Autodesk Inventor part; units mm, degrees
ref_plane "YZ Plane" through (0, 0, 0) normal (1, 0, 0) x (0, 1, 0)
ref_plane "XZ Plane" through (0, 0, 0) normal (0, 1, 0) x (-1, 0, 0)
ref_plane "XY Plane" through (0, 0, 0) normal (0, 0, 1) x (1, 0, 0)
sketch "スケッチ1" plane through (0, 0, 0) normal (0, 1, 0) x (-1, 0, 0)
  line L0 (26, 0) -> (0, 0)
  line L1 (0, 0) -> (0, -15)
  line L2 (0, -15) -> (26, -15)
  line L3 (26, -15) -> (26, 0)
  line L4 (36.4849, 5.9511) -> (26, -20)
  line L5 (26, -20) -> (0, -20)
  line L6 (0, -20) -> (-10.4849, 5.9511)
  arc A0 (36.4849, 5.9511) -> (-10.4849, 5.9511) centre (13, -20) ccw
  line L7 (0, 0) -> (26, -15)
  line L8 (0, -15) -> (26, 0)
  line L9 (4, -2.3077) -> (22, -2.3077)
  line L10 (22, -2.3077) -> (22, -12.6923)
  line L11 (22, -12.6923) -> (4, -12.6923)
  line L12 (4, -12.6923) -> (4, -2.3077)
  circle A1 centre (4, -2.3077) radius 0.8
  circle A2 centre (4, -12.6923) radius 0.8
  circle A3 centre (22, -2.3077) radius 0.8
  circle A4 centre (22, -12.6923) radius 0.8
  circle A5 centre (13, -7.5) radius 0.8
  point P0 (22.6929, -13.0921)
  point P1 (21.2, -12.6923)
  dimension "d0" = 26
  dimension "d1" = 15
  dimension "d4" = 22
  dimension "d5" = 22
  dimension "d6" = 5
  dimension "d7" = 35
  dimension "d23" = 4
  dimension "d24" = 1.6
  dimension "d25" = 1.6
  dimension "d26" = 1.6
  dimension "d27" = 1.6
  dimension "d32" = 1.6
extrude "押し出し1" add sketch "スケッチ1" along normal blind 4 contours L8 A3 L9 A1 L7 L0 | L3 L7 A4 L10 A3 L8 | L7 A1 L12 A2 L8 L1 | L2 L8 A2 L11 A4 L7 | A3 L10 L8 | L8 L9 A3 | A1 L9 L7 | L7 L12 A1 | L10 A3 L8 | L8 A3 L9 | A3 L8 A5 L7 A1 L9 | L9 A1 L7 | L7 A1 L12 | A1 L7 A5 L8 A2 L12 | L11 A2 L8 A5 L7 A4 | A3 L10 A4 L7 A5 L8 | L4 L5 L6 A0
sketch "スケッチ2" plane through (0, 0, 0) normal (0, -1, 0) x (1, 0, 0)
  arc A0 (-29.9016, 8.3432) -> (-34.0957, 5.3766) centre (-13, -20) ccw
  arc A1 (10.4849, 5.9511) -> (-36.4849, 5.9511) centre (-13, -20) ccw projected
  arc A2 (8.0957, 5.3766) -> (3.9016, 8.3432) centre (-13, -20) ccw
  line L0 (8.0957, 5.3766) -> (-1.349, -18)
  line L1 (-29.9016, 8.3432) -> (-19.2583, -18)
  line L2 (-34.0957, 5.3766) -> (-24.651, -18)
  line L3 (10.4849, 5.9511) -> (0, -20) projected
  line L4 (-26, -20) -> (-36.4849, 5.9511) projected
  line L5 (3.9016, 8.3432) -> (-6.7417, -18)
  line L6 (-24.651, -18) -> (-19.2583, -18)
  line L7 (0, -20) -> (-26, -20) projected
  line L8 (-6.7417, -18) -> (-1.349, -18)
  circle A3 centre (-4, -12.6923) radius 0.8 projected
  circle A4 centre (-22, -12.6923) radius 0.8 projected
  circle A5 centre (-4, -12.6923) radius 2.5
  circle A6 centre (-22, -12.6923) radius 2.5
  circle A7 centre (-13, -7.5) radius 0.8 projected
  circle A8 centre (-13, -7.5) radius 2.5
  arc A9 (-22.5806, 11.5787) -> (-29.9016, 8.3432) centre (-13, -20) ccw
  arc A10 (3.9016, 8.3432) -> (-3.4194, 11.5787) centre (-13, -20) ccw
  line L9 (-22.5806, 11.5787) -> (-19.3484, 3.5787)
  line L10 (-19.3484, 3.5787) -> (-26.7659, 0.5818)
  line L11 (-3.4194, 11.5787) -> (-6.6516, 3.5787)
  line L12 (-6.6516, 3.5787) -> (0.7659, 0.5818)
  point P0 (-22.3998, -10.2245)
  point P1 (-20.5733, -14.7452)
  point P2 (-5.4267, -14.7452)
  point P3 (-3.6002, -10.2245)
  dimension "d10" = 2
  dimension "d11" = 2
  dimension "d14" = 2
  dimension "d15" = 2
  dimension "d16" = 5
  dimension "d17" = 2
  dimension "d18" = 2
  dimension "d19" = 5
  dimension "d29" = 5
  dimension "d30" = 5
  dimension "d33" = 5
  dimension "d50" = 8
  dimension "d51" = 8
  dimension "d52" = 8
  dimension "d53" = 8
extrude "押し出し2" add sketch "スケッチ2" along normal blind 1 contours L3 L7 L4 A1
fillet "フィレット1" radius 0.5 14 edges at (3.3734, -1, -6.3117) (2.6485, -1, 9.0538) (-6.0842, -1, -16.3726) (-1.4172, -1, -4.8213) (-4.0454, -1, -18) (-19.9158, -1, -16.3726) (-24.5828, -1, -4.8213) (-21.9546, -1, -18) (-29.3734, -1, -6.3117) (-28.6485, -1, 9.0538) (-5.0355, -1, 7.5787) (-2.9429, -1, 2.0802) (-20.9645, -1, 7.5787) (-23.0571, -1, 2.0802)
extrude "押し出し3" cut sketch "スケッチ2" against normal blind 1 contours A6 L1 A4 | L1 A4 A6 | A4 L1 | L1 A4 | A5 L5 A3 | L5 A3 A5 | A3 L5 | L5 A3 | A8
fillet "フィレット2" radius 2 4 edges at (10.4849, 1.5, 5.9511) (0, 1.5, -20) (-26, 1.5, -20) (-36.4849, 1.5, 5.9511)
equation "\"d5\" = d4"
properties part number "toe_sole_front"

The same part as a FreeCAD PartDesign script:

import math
import FreeCAD as App
import Part
import Sketcher
Q = App.Units.Quantity


def edges_at(feature, points):
    """Names of the edges that pass closest to the given points."""
    edges = feature.Shape.Edges
    near = lambda p: min(range(len(edges)), key=lambda i: edges[i].distToShape(Part.Vertex(*p))[0])
    return sorted({f"Edge{near(p) + 1}" for p in points})

doc = App.newDocument("Part")
body = doc.addObject("PartDesign::Body", "Body")

# Sketch on XZ plane
sketch1 = body.newObject("Sketcher::SketchObject", "Sketch")
sketch1.AttachmentSupport = (doc.getObject("XZ_Plane"), [""])
sketch1.MapMode = "FlatFace"
sketch1.addGeometry(Part.LineSegment(App.Vector(-26, -20, 0), App.Vector(-36.5, 6, 0)), False)
sketch1.addGeometry(Part.ArcOfCircle(Part.Circle(App.Vector(-13, -20, 0), App.Vector(0, 0, 1), 35), math.radians(48), math.radians(132)), False)
sketch1.addGeometry(Part.LineSegment(App.Vector(10.5, 6, 0), App.Vector(0, -20, 0)), False)
sketch1.addGeometry(Part.LineSegment(App.Vector(0, -20, 0), App.Vector(-26, -20, 0)), False)
sketch1.addGeometry(Part.Circle(App.Vector(-22, -12.7, 0), App.Vector(0, 0, 1), 0.8), False)
sketch1.addGeometry(Part.Circle(App.Vector(-13, -7.5, 0), App.Vector(0, 0, 1), 0.8), False)
sketch1.addGeometry(Part.Circle(App.Vector(-4, -12.7, 0), App.Vector(0, 0, 1), 0.8), False)
sketch1.addConstraint(Sketcher.Constraint("Coincident", 0, 2, 1, 2))
sketch1.addConstraint(Sketcher.Constraint("Coincident", 1, 1, 2, 1))
sketch1.addConstraint(Sketcher.Constraint("Coincident", 2, 2, 3, 1))
sketch1.addConstraint(Sketcher.Constraint("Coincident", 3, 2, 0, 1))
sketch1.addConstraint(Sketcher.Constraint("Horizontal", 3))
sketch1.addConstraint(Sketcher.Constraint("Equal", 4, 5))
sketch1.addConstraint(Sketcher.Constraint("Equal", 5, 6))
sketch1.addConstraint(Sketcher.Constraint("PointOnObject", 2, 2, -2))
sketch1.addConstraint(Sketcher.Constraint("Horizontal", 4, 3, 6, 3))
sketch1.addConstraint(Sketcher.Constraint("Horizontal", 0, 2, 1, 1))
sketch1.addConstraint(Sketcher.Constraint("Horizontal", 1, 3, 2, 2))
sketch1.addConstraint(Sketcher.Constraint("Vertical", 1, 3, 5, 3))
sketch1.addConstraint(Sketcher.Constraint("Equal", 0, 2))
sketch1.addConstraint(Sketcher.Constraint("Radius", 1, Q("35 mm")))
sketch1.addConstraint(Sketcher.Constraint("Diameter", 4, Q("1.6 mm")))
sketch1.addConstraint(Sketcher.Constraint("DistanceX", 3, 2, 3, 1, Q("26 mm")))
sketch1.addConstraint(Sketcher.Constraint("DistanceX", 4, 3, -1, 1, Q("22 mm")))
sketch1.addConstraint(Sketcher.Constraint("DistanceX", 6, 3, -1, 1, Q("4 mm")))
sketch1.addConstraint(Sketcher.Constraint("Angle", 0, Q("112 deg")))
sketch1.addConstraint(Sketcher.Constraint("DistanceY", 1, 3, -1, 1, Q("20 mm")))
sketch1.addConstraint(Sketcher.Constraint("DistanceY", 5, 3, -1, 1, Q("7.5 mm")))
sketch1.addConstraint(Sketcher.Constraint("DistanceY", 4, 3, -1, 1, Q("12.6923 mm")))
pad1 = body.newObject("PartDesign::Pad", "Pad")
pad1.Profile = sketch1
pad1.Length = 4
pad1.Reversed = True

# Sketch on XZ plane
sketch2 = body.newObject("Sketcher::SketchObject", "Sketch001")
sketch2.AttachmentSupport = (doc.getObject("XZ_Plane"), [""])
sketch2.MapMode = "FlatFace"
sketch2.addGeometry(Part.LineSegment(App.Vector(0, -20, 0), App.Vector(10.5, 6, 0)), False)
sketch2.addGeometry(Part.ArcOfCircle(Part.Circle(App.Vector(-13, -20, 0), App.Vector(0, 0, 1), 35), math.radians(48), math.radians(132)), False)
sketch2.addGeometry(Part.LineSegment(App.Vector(-36.5, 6, 0), App.Vector(-26, -20, 0)), False)
sketch2.addGeometry(Part.LineSegment(App.Vector(-26, -20, 0), App.Vector(0, -20, 0)), False)
sketch2.addGeometry(Part.ArcOfCircle(Part.Circle(App.Vector(-13, -20, 0), App.Vector(0, 0, 1), 33), math.radians(120.81), math.radians(129.74)), False)
sketch2.addGeometry(Part.ArcOfCircle(Part.Circle(App.Vector(-13, -20, 0), App.Vector(0, 0, 1), 33), math.radians(106.88), math.radians(120.81)), False)
sketch2.addGeometry(Part.LineSegment(App.Vector(-22.6, 11.6, 0), App.Vector(-19.3, 3.6, 0)), False)
sketch2.addGeometry(Part.LineSegment(App.Vector(-19.3, 3.6, 0), App.Vector(-26.8, 0.6, 0)), False)
sketch2.addGeometry(Part.LineSegment(App.Vector(-26.8, 0.6, 0), App.Vector(-22.4, -10.2, 0)), False)
sketch2.addGeometry(Part.ArcOfCircle(Part.Circle(App.Vector(-22, -12.7, 0), App.Vector(0, 0, 1), 2.5), math.radians(-55), math.radians(99)), False)
sketch2.addGeometry(Part.LineSegment(App.Vector(-20.6, -14.7, 0), App.Vector(-19.3, -18, 0)), False)
sketch2.addGeometry(Part.LineSegment(App.Vector(-19.3, -18, 0), App.Vector(-24.7, -18, 0)), False)
sketch2.addGeometry(Part.LineSegment(App.Vector(-24.7, -18, 0), App.Vector(-34.1, 5.4, 0)), False)
sketch2.addGeometry(Part.Circle(App.Vector(-13, -7.5, 0), App.Vector(0, 0, 1), 2.5), False)
sketch2.addGeometry(Part.ArcOfCircle(Part.Circle(App.Vector(-13, -20, 0), App.Vector(0, 0, 1), 33), math.radians(50.26), math.radians(59.19)), False)
sketch2.addGeometry(Part.LineSegment(App.Vector(8.1, 5.4, 0), App.Vector(-1.3, -18, 0)), False)
sketch2.addGeometry(Part.LineSegment(App.Vector(-1.3, -18, 0), App.Vector(-6.7, -18, 0)), False)
sketch2.addGeometry(Part.LineSegment(App.Vector(-6.7, -18, 0), App.Vector(-5.4, -14.7, 0)), False)
sketch2.addGeometry(Part.ArcOfCircle(Part.Circle(App.Vector(-4, -12.7, 0), App.Vector(0, 0, 1), 2.5), math.radians(81), math.radians(235)), False)
sketch2.addGeometry(Part.LineSegment(App.Vector(-3.6, -10.2, 0), App.Vector(0.8, 0.6, 0)), False)
sketch2.addGeometry(Part.LineSegment(App.Vector(0.8, 0.6, 0), App.Vector(-6.7, 3.6, 0)), False)
sketch2.addGeometry(Part.LineSegment(App.Vector(-6.7, 3.6, 0), App.Vector(-3.4, 11.6, 0)), False)
sketch2.addGeometry(Part.ArcOfCircle(Part.Circle(App.Vector(-13, -20, 0), App.Vector(0, 0, 1), 33), math.radians(59.19), math.radians(73.12)), False)
sketch2.addConstraint(Sketcher.Constraint("Coincident", 0, 2, 1, 1))
sketch2.addConstraint(Sketcher.Constraint("Coincident", 1, 2, 2, 1))
sketch2.addConstraint(Sketcher.Constraint("Coincident", 2, 2, 3, 1))
sketch2.addConstraint(Sketcher.Constraint("Coincident", 3, 2, 0, 1))
sketch2.addConstraint(Sketcher.Constraint("Tangent", 4, 1, 5, 2))
sketch2.addConstraint(Sketcher.Constraint("Coincident", 5, 1, 6, 1))
sketch2.addConstraint(Sketcher.Constraint("Coincident", 6, 2, 7, 1))
sketch2.addConstraint(Sketcher.Constraint("Coincident", 7, 2, 8, 1))
sketch2.addConstraint(Sketcher.Constraint("Coincident", 8, 2, 9, 2))
sketch2.addConstraint(Sketcher.Constraint("Coincident", 9, 1, 10, 1))
sketch2.addConstraint(Sketcher.Constraint("Coincident", 10, 2, 11, 1))
sketch2.addConstraint(Sketcher.Constraint("Coincident", 11, 2, 12, 1))
sketch2.addConstraint(Sketcher.Constraint("Coincident", 12, 2, 4, 2))
sketch2.addConstraint(Sketcher.Constraint("Coincident", 14, 1, 15, 1))
sketch2.addConstraint(Sketcher.Constraint("Coincident", 15, 2, 16, 1))
sketch2.addConstraint(Sketcher.Constraint("Coincident", 16, 2, 17, 1))
sketch2.addConstraint(Sketcher.Constraint("Coincident", 17, 2, 18, 2))
sketch2.addConstraint(Sketcher.Constraint("Coincident", 18, 1, 19, 1))
sketch2.addConstraint(Sketcher.Constraint("Coincident", 19, 2, 20, 1))
sketch2.addConstraint(Sketcher.Constraint("Coincident", 20, 2, 21, 1))
sketch2.addConstraint(Sketcher.Constraint("Coincident", 21, 2, 22, 2))
sketch2.addConstraint(Sketcher.Constraint("Tangent", 22, 1, 14, 2))
sketch2.addConstraint(Sketcher.Constraint("Horizontal", 3))
sketch2.addConstraint(Sketcher.Constraint("Horizontal", 11))
sketch2.addConstraint(Sketcher.Constraint("Horizontal", 16))
sketch2.addConstraint(Sketcher.Constraint("Equal", 9, 13))
sketch2.addConstraint(Sketcher.Constraint("Equal", 13, 18))
sketch2.addConstraint(Sketcher.Constraint("PointOnObject", 3, 2, -2))
sketch2.addConstraint(Sketcher.Constraint("Parallel", 2, 6))
sketch2.addConstraint(Sketcher.Constraint("Perpendicular", 6, 7))
sketch2.addConstraint(Sketcher.Constraint("Perpendicular", 7, 8))
sketch2.addConstraint(Sketcher.Constraint("Parallel", 8, 10))
sketch2.addConstraint(Sketcher.Constraint("Parallel", 10, 12))
sketch2.addConstraint(Sketcher.Constraint("Parallel", 0, 15))
sketch2.addConstraint(Sketcher.Constraint("Parallel", 15, 17))
sketch2.addConstraint(Sketcher.Constraint("Parallel", 17, 19))
sketch2.addConstraint(Sketcher.Constraint("Perpendicular", 19, 20))
sketch2.addConstraint(Sketcher.Constraint("Perpendicular", 20, 21))
sketch2.addConstraint(Sketcher.Constraint("Horizontal", 9, 3, 18, 3))
sketch2.addConstraint(Sketcher.Constraint("Horizontal", 0, 2, 1, 2))
sketch2.addConstraint(Sketcher.Constraint("Horizontal", 1, 3, 2, 2))
sketch2.addConstraint(Sketcher.Constraint("Horizontal", 12, 2, 14, 1))
sketch2.addConstraint(Sketcher.Constraint("Horizontal", 11, 2, 15, 2))
sketch2.addConstraint(Sketcher.Constraint("Horizontal", 9, 1, 17, 2))
sketch2.addConstraint(Sketcher.Constraint("Horizontal", 8, 2, 18, 1))
sketch2.addConstraint(Sketcher.Constraint("Horizontal", 7, 2, 19, 2))
sketch2.addConstraint(Sketcher.Constraint("Horizontal", 6, 2, 20, 2))
sketch2.addConstraint(Sketcher.Constraint("Horizontal", 5, 1, 21, 2))
sketch2.addConstraint(Sketcher.Constraint("Horizontal", 4, 1, 22, 1))
sketch2.addConstraint(Sketcher.Constraint("Vertical", 1, 3, 13, 3))
sketch2.addConstraint(Sketcher.Constraint("Vertical", 4, 3, 14, 3))
sketch2.addConstraint(Sketcher.Constraint("Vertical", 5, 3, 22, 3))
sketch2.addConstraint(Sketcher.Constraint("Equal", 11, 16))
sketch2.addConstraint(Sketcher.Constraint("Equal", 0, 2))
sketch2.addConstraint(Sketcher.Constraint("Diameter", 13, Q("5 mm")))
sketch2.addConstraint(Sketcher.Constraint("Distance", 7, Q("8 mm")))
sketch2.addConstraint(Sketcher.Constraint("Radius", 1, Q("35 mm")))
sketch2.addConstraint(Sketcher.Constraint("DistanceY", 6, 2, 5, 1, Q("8 mm")))
sketch2.addConstraint(Sketcher.Constraint("DistanceY", 2, 2, 11, 2, Q("2 mm")))
sketch2.addConstraint(Sketcher.Constraint("DistanceX", 3, 1, 3, 2, Q("26 mm")))
sketch2.addConstraint(Sketcher.Constraint("Angle", 0, Q("68 deg")))
sketch2.addConstraint(Sketcher.Constraint("DistanceY", 1, 3, -1, 1, Q("20 mm")))
sketch2.addConstraint(Sketcher.Constraint("DistanceX", 9, 3, -1, 1, Q("22 mm")))
sketch2.addConstraint(Sketcher.Constraint("DistanceX", 18, 3, -1, 1, Q("4 mm")))
sketch2.addConstraint(Sketcher.Constraint("Radius", 5, Q("32.999 mm")))
sketch2.addConstraint(Sketcher.Constraint("DistanceY", 13, 3, -1, 1, Q("7.5 mm")))
sketch2.addConstraint(Sketcher.Constraint("Radius", 4, Q("32.9983 mm")))
sketch2.addConstraint(Sketcher.Constraint("Radius", 14, Q("33.0017 mm")))
sketch2.addConstraint(Sketcher.Constraint("DistanceY", 5, 3, 0, 2, Q("25.95 mm")))
sketch2.addConstraint(Sketcher.Constraint("DistanceX", 19, 2, 14, 1, Q("7.33 mm")))
sketch2.addConstraint(Sketcher.Constraint("Distance", 8, Q("11.655 mm")))
sketch2.addConstraint(Sketcher.Constraint("DistanceX", 11, 2, 11, 1, Q("5.3927 mm")))
sketch2.addConstraint(Sketcher.Constraint("DistanceX", 7, 2, -1, 1, Q("26.766 mm")))
sketch2.addConstraint(Sketcher.Constraint("DistanceY", 1, 2, 4, 1, Q("2.392 mm")))
pad2 = body.newObject("PartDesign::Pad", "Pad001")
pad2.Profile = sketch2
pad2.Length = 1
doc.recompute()

fillet = body.newObject("PartDesign::Fillet", "Fillet")
fillet.Base = (pad2, edges_at(pad2, [
    (3.373, -1, -6.312),
    (2.648, -1, 9.054),
    (-6.084, -1, -16.373),
    (-1.417, -1, -4.821),
    (-4.045, -1, -18),
    (-19.916, -1, -16.373),
    (-24.583, -1, -4.821),
    (-21.955, -1, -18),
    (-29.373, -1, -6.312),
    (-28.648, -1, 9.054),
    (-5.035, -1, 7.579),
    (-2.943, -1, 2.08),
    (-20.965, -1, 7.579),
    (-23.057, -1, 2.08),
]))
fillet.Radius = 0.5

# Sketch on XZ plane
sketch3 = body.newObject("Sketcher::SketchObject", "Sketch002")
sketch3.AttachmentSupport = (doc.getObject("XZ_Plane"), [""])
sketch3.MapMode = "FlatFace"
sketch3.addGeometry(Part.Circle(App.Vector(-22, -12.7, 0), App.Vector(0, 0, 1), 2.5), False)
sketch3.addGeometry(Part.Circle(App.Vector(-4, -12.7, 0), App.Vector(0, 0, 1), 2.5), False)
sketch3.addGeometry(Part.Circle(App.Vector(-13, -7.5, 0), App.Vector(0, 0, 1), 2.5), False)
sketch3.addGeometry(Part.Circle(App.Vector(-13, -7.5, 0), App.Vector(0, 0, 1), 0.8), False)
sketch3.addConstraint(Sketcher.Constraint("Coincident", 3, 3, 2, 3))
sketch3.addConstraint(Sketcher.Constraint("Equal", 0, 1))
sketch3.addConstraint(Sketcher.Constraint("Equal", 1, 2))
sketch3.addConstraint(Sketcher.Constraint("Horizontal", 0, 3, 1, 3))
sketch3.addConstraint(Sketcher.Constraint("Diameter", 0, Q("5 mm")))
sketch3.addConstraint(Sketcher.Constraint("Diameter", 3, Q("1.6 mm")))
sketch3.addConstraint(Sketcher.Constraint("DistanceX", 0, 3, -1, 1, Q("22 mm")))
sketch3.addConstraint(Sketcher.Constraint("DistanceX", 1, 3, -1, 1, Q("4 mm")))
sketch3.addConstraint(Sketcher.Constraint("DistanceX", 2, 3, -1, 1, Q("13 mm")))
sketch3.addConstraint(Sketcher.Constraint("DistanceY", 2, 3, -1, 1, Q("7.5 mm")))
sketch3.addConstraint(Sketcher.Constraint("DistanceY", 0, 3, -1, 1, Q("12.6923 mm")))
pocket1 = body.newObject("PartDesign::Pocket", "Pocket")
pocket1.Profile = sketch3
pocket1.Length = 1
doc.recompute()

fillet2 = body.newObject("PartDesign::Fillet", "Fillet001")
fillet2.Base = (pocket1, edges_at(pocket1, [
    (10.485, 1.5, 5.951),
    (0, 1.5, -20),
    (-26, 1.5, -20),
    (-36.485, 1.5, 5.951),
]))
fillet2.Radius = 2

doc.recompute()
